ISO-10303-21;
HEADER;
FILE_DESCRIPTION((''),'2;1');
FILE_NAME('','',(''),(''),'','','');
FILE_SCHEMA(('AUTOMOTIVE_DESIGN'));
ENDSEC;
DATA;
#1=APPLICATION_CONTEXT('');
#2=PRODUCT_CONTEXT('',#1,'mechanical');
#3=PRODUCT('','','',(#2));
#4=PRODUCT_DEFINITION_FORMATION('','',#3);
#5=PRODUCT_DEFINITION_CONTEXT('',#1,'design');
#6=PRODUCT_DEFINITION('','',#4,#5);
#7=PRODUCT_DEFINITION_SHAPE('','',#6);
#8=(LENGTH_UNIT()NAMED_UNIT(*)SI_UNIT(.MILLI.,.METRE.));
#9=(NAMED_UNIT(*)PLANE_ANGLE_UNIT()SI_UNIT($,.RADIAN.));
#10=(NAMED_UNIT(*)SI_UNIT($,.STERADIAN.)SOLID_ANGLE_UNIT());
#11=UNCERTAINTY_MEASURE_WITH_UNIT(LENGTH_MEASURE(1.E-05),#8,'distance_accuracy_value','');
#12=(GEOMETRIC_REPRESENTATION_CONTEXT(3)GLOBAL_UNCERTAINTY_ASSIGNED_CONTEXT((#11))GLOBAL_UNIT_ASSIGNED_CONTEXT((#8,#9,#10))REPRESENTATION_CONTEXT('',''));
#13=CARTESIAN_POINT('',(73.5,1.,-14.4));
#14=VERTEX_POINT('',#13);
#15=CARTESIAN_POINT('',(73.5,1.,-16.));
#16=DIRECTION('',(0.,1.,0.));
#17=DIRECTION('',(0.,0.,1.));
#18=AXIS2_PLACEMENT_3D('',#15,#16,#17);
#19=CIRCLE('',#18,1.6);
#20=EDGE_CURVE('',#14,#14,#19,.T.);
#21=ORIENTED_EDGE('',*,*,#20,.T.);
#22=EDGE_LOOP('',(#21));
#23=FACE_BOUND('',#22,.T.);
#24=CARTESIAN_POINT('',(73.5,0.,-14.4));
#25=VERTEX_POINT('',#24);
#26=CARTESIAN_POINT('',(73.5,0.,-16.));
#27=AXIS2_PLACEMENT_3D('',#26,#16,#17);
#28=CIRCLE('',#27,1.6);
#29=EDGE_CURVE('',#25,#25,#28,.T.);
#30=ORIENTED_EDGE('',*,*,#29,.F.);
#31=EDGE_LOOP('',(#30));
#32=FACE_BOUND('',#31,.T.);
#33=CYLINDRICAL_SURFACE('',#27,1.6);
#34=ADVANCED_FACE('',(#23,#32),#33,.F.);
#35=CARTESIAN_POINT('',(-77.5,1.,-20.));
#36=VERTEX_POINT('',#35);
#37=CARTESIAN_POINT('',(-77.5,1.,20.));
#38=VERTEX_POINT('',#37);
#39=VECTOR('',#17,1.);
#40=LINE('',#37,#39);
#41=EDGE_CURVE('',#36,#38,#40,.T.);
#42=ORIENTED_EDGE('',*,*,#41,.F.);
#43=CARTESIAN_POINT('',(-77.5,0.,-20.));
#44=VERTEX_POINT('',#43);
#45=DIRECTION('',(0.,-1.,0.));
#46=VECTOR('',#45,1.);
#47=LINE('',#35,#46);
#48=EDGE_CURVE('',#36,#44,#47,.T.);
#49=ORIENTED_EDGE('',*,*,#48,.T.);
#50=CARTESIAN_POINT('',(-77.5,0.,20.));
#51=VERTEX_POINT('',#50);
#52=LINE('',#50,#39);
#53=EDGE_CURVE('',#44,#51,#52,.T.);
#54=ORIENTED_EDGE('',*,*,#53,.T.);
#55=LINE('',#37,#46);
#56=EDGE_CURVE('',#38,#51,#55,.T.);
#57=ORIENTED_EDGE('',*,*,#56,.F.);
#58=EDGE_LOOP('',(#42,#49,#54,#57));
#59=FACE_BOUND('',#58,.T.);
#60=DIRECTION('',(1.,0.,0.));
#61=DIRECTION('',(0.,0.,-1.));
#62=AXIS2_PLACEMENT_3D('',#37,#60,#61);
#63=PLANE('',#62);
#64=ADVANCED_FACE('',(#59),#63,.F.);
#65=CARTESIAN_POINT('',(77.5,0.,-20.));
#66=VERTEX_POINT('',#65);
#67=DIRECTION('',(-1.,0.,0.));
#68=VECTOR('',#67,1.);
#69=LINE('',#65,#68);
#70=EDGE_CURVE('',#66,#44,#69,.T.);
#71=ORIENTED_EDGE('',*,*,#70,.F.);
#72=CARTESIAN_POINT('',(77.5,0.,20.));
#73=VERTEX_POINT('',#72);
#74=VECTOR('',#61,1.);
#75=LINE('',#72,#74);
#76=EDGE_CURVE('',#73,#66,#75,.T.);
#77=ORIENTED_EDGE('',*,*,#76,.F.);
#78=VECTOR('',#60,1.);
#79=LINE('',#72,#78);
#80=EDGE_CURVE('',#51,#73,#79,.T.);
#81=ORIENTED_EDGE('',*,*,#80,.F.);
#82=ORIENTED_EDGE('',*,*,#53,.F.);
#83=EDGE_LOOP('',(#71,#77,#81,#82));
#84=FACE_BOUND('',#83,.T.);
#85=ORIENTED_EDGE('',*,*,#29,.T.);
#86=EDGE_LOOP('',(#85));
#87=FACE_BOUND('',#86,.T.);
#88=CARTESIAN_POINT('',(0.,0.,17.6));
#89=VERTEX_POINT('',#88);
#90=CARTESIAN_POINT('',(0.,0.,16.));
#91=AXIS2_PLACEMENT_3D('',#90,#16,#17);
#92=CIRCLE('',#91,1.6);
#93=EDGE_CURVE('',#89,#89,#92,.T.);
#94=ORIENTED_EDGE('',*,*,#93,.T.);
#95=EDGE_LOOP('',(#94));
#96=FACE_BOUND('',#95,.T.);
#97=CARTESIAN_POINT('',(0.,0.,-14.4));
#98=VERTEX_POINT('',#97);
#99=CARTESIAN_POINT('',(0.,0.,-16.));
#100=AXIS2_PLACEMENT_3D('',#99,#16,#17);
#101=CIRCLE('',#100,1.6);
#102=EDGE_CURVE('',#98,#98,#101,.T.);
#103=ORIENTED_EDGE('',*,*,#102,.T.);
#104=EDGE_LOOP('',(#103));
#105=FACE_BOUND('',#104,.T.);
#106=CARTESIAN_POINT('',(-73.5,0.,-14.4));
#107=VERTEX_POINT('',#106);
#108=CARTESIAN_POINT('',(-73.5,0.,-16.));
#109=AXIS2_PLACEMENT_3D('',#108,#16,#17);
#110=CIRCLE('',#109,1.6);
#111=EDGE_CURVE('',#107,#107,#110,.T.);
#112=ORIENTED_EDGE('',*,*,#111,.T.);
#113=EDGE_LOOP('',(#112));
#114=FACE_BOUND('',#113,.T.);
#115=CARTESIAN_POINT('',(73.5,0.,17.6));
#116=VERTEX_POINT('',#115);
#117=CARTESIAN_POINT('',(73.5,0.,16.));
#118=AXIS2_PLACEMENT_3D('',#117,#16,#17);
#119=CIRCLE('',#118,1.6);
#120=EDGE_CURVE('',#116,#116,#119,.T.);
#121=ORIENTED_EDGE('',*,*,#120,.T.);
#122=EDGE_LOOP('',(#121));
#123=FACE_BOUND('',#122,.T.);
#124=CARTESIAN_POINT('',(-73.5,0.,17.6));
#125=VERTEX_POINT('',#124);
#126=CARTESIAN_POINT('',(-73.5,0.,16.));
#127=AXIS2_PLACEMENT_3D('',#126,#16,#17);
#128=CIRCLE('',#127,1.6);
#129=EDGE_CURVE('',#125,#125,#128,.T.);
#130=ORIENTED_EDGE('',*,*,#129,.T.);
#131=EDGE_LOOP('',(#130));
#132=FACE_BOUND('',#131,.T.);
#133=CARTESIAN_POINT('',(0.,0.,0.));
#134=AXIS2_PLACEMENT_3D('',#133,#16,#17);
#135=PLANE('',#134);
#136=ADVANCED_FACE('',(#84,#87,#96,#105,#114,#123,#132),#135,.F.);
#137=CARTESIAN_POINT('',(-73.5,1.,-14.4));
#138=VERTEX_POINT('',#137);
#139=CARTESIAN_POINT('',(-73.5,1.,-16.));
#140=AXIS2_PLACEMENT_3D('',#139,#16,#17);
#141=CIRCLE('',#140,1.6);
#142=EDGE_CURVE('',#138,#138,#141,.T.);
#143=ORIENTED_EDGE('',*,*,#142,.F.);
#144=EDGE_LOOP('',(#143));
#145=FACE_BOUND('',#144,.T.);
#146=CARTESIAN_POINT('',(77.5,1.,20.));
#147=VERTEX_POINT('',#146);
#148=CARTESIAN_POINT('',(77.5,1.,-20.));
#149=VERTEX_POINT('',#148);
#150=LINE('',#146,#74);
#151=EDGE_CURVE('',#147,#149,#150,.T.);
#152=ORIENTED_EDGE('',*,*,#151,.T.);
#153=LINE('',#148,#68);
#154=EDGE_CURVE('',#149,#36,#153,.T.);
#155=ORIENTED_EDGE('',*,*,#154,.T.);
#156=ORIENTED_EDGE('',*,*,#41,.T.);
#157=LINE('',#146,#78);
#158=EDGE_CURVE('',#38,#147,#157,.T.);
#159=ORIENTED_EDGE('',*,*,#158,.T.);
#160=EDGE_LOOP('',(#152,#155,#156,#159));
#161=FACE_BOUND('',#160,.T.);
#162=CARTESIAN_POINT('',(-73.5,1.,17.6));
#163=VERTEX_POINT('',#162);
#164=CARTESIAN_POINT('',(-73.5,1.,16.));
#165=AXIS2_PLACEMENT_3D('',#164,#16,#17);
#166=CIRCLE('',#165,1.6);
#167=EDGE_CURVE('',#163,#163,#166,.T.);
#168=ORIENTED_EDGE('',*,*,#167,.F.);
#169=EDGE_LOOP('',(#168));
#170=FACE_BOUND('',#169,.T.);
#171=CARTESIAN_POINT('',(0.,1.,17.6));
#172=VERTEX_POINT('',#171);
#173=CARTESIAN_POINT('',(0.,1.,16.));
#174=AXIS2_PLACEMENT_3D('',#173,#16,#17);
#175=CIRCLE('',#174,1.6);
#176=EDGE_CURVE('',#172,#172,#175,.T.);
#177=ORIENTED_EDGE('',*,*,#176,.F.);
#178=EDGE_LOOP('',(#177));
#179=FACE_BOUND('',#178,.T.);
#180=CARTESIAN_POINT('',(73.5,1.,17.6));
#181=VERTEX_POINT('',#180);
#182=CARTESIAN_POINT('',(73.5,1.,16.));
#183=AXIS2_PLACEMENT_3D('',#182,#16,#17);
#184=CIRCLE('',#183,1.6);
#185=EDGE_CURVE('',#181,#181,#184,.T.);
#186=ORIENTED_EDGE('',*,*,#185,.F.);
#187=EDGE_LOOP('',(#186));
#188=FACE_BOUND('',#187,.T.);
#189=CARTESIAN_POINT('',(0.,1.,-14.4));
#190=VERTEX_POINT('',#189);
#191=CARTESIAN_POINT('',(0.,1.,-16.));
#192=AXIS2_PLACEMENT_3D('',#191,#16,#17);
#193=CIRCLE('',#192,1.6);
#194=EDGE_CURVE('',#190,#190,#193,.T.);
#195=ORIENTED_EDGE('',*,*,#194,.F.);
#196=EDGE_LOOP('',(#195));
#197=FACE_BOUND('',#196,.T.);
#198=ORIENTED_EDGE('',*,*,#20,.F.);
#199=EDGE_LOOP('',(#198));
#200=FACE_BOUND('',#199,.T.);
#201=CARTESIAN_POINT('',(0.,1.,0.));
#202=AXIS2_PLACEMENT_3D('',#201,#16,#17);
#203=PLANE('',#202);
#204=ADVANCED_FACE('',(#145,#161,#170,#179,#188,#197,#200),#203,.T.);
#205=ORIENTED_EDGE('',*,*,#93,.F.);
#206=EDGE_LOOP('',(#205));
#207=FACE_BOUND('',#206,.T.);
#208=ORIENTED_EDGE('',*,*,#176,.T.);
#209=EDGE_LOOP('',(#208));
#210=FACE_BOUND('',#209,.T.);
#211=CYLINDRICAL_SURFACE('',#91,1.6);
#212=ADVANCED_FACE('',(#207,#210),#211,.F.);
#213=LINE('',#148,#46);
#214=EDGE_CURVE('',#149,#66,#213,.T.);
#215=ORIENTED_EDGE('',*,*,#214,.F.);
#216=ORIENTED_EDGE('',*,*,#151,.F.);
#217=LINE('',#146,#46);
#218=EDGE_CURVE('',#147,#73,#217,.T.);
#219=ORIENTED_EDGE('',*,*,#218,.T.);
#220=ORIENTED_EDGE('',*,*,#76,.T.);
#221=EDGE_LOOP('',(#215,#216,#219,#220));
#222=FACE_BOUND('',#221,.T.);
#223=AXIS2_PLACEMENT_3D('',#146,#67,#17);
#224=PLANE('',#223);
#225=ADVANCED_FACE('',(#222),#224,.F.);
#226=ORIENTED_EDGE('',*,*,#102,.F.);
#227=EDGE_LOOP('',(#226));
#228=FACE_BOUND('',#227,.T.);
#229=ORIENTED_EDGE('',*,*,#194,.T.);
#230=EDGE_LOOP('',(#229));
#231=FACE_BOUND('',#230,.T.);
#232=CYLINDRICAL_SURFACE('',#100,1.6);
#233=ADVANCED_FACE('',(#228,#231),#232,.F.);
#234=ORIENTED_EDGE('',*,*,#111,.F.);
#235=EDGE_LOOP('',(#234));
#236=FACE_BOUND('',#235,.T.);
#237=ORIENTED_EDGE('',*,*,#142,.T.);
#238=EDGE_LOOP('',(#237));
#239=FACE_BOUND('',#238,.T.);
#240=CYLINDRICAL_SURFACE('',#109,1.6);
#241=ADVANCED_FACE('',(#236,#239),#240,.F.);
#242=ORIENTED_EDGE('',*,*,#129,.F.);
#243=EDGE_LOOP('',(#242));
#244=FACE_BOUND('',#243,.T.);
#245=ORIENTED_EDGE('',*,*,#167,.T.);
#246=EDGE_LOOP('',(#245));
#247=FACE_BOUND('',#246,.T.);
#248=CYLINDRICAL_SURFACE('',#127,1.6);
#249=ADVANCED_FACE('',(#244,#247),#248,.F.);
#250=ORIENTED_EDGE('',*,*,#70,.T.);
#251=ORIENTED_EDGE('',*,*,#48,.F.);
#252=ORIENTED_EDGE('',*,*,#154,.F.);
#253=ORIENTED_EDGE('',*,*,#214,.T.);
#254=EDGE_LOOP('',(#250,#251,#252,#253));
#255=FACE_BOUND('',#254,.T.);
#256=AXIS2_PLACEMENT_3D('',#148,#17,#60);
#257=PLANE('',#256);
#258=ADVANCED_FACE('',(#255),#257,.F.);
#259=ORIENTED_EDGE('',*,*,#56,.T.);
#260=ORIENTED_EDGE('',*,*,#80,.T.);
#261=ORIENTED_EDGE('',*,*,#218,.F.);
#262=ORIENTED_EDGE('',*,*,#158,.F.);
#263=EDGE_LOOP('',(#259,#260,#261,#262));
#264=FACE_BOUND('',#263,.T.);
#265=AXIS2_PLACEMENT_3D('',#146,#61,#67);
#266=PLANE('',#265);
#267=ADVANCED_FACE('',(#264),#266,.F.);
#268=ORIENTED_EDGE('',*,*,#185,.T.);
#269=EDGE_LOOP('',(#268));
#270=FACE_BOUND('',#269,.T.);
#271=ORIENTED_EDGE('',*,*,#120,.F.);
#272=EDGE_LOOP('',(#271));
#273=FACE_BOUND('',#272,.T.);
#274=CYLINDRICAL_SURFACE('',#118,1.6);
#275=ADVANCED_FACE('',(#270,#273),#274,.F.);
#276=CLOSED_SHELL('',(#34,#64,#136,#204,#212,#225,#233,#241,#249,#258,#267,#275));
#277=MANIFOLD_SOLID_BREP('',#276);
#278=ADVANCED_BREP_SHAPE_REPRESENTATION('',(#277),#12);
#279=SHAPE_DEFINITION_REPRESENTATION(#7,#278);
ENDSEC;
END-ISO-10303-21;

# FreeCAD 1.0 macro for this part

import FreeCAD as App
import Part
import Sketcher

V = App.Vector

doc = App.newDocument("Part")
body = doc.addObject("PartDesign::Body", "Body")

# Sketch on XZ plane
sketch1 = body.newObject("Sketcher::SketchObject", "Sketch")
sketch1.AttachmentSupport = (doc.getObject("XZ_Plane"), [""])
sketch1.MapMode = "FlatFace"
sketch1.addGeometry(Part.LineSegment(V(-78, -20, 0), V(-78, 20, 0)), False)
sketch1.addGeometry(Part.LineSegment(V(-78, 20, 0), V(78, 20, 0)), False)
sketch1.addGeometry(Part.LineSegment(V(78, 20, 0), V(78, -20, 0)), False)
sketch1.addGeometry(Part.LineSegment(V(78, -20, 0), V(-78, -20, 0)), False)
sketch1.addConstraint(Sketcher.Constraint("Coincident", 0, 2, 1, 1))
sketch1.addConstraint(Sketcher.Constraint("Coincident", 1, 2, 2, 1))
sketch1.addConstraint(Sketcher.Constraint("Coincident", 2, 2, 3, 1))
sketch1.addConstraint(Sketcher.Constraint("Coincident", 3, 2, 0, 1))
sketch1.addConstraint(Sketcher.Constraint("Vertical", 0))
sketch1.addConstraint(Sketcher.Constraint("Horizontal", 1))
sketch1.addConstraint(Sketcher.Constraint("Vertical", 2))
sketch1.addConstraint(Sketcher.Constraint("Horizontal", 3))
sketch1.addConstraint(Sketcher.Constraint("Symmetric", 0, 2, 2, 2, -1, 1))
sketch1.addConstraint(Sketcher.Constraint("DistanceX", 1, 1, 1, 2, 155.0))
sketch1.addConstraint(Sketcher.Constraint("DistanceY", 0, 1, 0, 2, 40.0))
pad1 = body.newObject("PartDesign::Pad", "Pad")
pad1.Profile = sketch1
pad1.Length = 1
pad1.Reversed = True

# Sketch on XZ plane
sketch2 = body.newObject("Sketcher::SketchObject", "Sketch001")
sketch2.AttachmentSupport = (doc.getObject("XZ_Plane"), [""])
sketch2.MapMode = "FlatFace"
sketch2.AttachmentOffset = App.Placement(V(0, 0, -1), App.Rotation())
sketch2.addGeometry(Part.Circle(V(-73.5, -16, 0), V(0, 0, 1), 1.6), False)
sketch2.addGeometry(Part.Circle(V(-73.5, 16, 0), V(0, 0, 1), 1.6), False)
sketch2.addGeometry(Part.Circle(V(73.5, -16, 0), V(0, 0, 1), 1.6), False)
sketch2.addGeometry(Part.Circle(V(73.5, 16, 0), V(0, 0, 1), 1.6), False)
sketch2.addGeometry(Part.Circle(V(0, -16, 0), V(0, 0, 1), 1.6), False)
sketch2.addGeometry(Part.Circle(V(0, 16, 0), V(0, 0, 1), 1.6), False)
sketch2.addConstraint(Sketcher.Constraint("Equal", 0, 1))
sketch2.addConstraint(Sketcher.Constraint("Equal", 1, 2))
sketch2.addConstraint(Sketcher.Constraint("Equal", 2, 3))
sketch2.addConstraint(Sketcher.Constraint("Equal", 3, 4))
sketch2.addConstraint(Sketcher.Constraint("Equal", 4, 5))
sketch2.addConstraint(Sketcher.Constraint("Symmetric", 1, 3, 2, 3, -1, 1))
sketch2.addConstraint(Sketcher.Constraint("Symmetric", 0, 3, 3, 3, -1, 1))
sketch2.addConstraint(Sketcher.Constraint("Symmetric", 4, 3, 5, 3, -1, 1))
sketch2.addConstraint(Sketcher.Constraint("Symmetric", 0, 3, 2, 3, -2))
sketch2.addConstraint(Sketcher.Constraint("PointOnObject", 4, 3, -2))
sketch2.addConstraint(Sketcher.Constraint("Horizontal", 2, 3, 4, 3))
sketch2.addConstraint(Sketcher.Constraint("Diameter", 0, 3.2))
sketch2.addConstraint(Sketcher.Constraint("DistanceY", 0, 3, -1, 1, 16.0))
sketch2.addConstraint(Sketcher.Constraint("DistanceX", 0, 3, 2, 3, 147.0))
pocket1 = body.newObject("PartDesign::Pocket", "Pocket")
pocket1.Profile = sketch2
pocket1.Type = "ThroughAll"
pocket1.Reversed = True

doc.recompute()
